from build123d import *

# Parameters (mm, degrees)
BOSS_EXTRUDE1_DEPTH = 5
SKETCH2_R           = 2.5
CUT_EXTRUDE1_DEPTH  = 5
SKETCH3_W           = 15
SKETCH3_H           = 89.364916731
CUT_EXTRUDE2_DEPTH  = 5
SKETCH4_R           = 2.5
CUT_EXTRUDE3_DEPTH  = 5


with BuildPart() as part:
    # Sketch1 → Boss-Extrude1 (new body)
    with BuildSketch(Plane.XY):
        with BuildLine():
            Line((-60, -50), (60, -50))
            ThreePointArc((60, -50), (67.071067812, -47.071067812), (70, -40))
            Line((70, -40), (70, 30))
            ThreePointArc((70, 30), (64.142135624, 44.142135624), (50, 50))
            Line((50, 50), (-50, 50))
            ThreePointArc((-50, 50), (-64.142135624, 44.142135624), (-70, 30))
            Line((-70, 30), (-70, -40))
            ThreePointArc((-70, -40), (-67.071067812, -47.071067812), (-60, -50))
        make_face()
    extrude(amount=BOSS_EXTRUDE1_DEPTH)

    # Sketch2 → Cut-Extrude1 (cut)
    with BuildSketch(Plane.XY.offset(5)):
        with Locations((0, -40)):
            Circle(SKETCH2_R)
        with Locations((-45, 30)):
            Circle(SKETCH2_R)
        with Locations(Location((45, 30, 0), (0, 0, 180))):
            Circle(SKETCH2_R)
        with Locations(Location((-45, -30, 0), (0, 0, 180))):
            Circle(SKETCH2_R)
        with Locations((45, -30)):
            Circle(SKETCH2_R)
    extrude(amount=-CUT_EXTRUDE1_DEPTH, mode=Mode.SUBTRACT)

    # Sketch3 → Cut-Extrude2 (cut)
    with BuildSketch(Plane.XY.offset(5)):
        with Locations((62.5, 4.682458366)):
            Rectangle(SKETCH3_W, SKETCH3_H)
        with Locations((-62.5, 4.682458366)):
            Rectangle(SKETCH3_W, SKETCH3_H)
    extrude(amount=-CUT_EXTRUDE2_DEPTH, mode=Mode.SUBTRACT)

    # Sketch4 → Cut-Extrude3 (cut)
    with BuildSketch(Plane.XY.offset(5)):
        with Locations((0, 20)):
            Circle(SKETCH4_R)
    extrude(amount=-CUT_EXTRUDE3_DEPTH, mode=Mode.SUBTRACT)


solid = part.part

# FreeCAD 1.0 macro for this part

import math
import FreeCAD as App
import Part
import Sketcher


def add_polygon(sketch, points):
    """Adds a closed chain of lines whose ends are joined by coincident constraints."""
    first, n = sketch.GeometryCount, len(points)
    for a, b in zip(points, points[1:] + points[:1]):
        sketch.addGeometry(Part.LineSegment(App.Vector(*a, 0), App.Vector(*b, 0)), False)
    for i in range(n):
        sketch.addConstraint(Sketcher.Constraint("Coincident", first + i, 2, first + (i + 1) % n, 1))

doc = App.newDocument("Part")
params = doc.addObject("Spreadsheet::Sheet", "Params")
for row, (alias, value) in enumerate([
    ("sketch1_radius", "10 mm"),
    ("sketch1_radius2", "20 mm"),
    ("sketch1_width", "120 mm"),
    ("sketch1_height", "70 mm"),
    ("pad1_length", "5 mm"),
    ("sketch2_diameter", "5 mm"),
    ("pocket1_length", "5 mm"),
    ("sketch3_width", "15 mm"),
    ("pocket2_length", "5 mm"),
    ("sketch4_diameter", "5 mm"),
    ("pocket3_length", "5 mm"),
], start=1):
    params.set(f"A{row}", alias)
    params.set(f"B{row}", "=" + value)
    params.setAlias(f"B{row}", alias)

body = doc.addObject("PartDesign::Body", "Body")

sketch1 = body.newObject("Sketcher::SketchObject", "Sketch")
sketch1.AttachmentSupport = (doc.getObject("XY_Plane"), [""])
sketch1.MapMode = "FlatFace"
sketch1.addGeometry([
    Part.LineSegment(App.Vector(-60, -50, 0), App.Vector(60, -50, 0)),
    Part.ArcOfCircle(Part.Circle(App.Vector(60, -40, 0), App.Vector(0, 0, 1), 10), math.radians(-90), math.radians(0)),
    Part.LineSegment(App.Vector(70, -40, 0), App.Vector(70, 30, 0)),
    Part.ArcOfCircle(Part.Circle(App.Vector(50, 30, 0), App.Vector(0, 0, 1), 20), math.radians(0), math.radians(90)),
    Part.LineSegment(App.Vector(50, 50, 0), App.Vector(-50, 50, 0)),
    Part.ArcOfCircle(Part.Circle(App.Vector(-50, 30, 0), App.Vector(0, 0, 1), 20), math.radians(90), math.radians(180)),
    Part.LineSegment(App.Vector(-70, 30, 0), App.Vector(-70, -40, 0)),
    Part.ArcOfCircle(Part.Circle(App.Vector(-60, -40, 0), App.Vector(0, 0, 1), 10), math.radians(180), math.radians(270)),
], False)
sketch1.addConstraint([
    Sketcher.Constraint("Tangent", 0, 2, 1, 1),
    Sketcher.Constraint("Tangent", 1, 2, 2, 1),
    Sketcher.Constraint("Tangent", 2, 2, 3, 1),
    Sketcher.Constraint("Tangent", 3, 2, 4, 1),
    Sketcher.Constraint("Tangent", 4, 2, 5, 1),
    Sketcher.Constraint("Tangent", 5, 2, 6, 1),
    Sketcher.Constraint("Tangent", 6, 2, 7, 1),
    Sketcher.Constraint("Tangent", 7, 2, 0, 1),
    Sketcher.Constraint("Horizontal", 0),
    Sketcher.Constraint("Vertical", 2),
    Sketcher.Constraint("Horizontal", 4),
    Sketcher.Constraint("Vertical", 6),
    Sketcher.Constraint("Equal", 3, 5),
    Sketcher.Constraint("Equal", 1, 7),
    Sketcher.Constraint("Radius", 1, 10.0),
    Sketcher.Constraint("Radius", 3, 20.0),
    Sketcher.Constraint("DistanceX", 0, 1, 0, 2, 120.0),
    Sketcher.Constraint("DistanceY", 2, 1, 2, 2, 70.0),
    Sketcher.Constraint("DistanceX", -1, 1, 1, 3, 60.0),
    Sketcher.Constraint("DistanceY", 1, 3, -1, 1, 40.0),
])
sketch1.setExpression("Constraints[14]", "Params.sketch1_radius")
sketch1.setExpression("Constraints[15]", "Params.sketch1_radius2")
sketch1.setExpression("Constraints[16]", "Params.sketch1_width")
sketch1.setExpression("Constraints[17]", "Params.sketch1_height")
pad1 = body.newObject("PartDesign::Pad", "Pad")
pad1.Profile = sketch1
pad1.setExpression("Length", "Params.pad1_length")

sketch2 = body.newObject("Sketcher::SketchObject", "Sketch001")
sketch2.AttachmentSupport = (doc.getObject("XY_Plane"), [""])
sketch2.MapMode = "FlatFace"
sketch2.AttachmentOffset = App.Placement(App.Vector(0, 0, 5), App.Rotation())
sketch2.addGeometry([
    Part.Circle(App.Vector(0, -40, 0), App.Vector(0, 0, 1), 2.5),
    Part.Circle(App.Vector(-45, 30, 0), App.Vector(0, 0, 1), 2.5),
    Part.Circle(App.Vector(45, 30, 0), App.Vector(0, 0, 1), 2.5),
    Part.Circle(App.Vector(-45, -30, 0), App.Vector(0, 0, 1), 2.5),
    Part.Circle(App.Vector(45, -30, 0), App.Vector(0, 0, 1), 2.5),
], False)
sketch2.addConstraint([
    Sketcher.Constraint("Equal", 0, 1),
    Sketcher.Constraint("Equal", 1, 2),
    Sketcher.Constraint("Equal", 2, 3),
    Sketcher.Constraint("Equal", 3, 4),
    Sketcher.Constraint("Symmetric", 2, 3, 3, 3, -1, 1),
    Sketcher.Constraint("Symmetric", 1, 3, 4, 3, -1, 1),
    Sketcher.Constraint("Symmetric", 1, 3, 2, 3, -2),
    Sketcher.Constraint("PointOnObject", 0, 3, -2),
    Sketcher.Constraint("Diameter", 0, 5.0),
    Sketcher.Constraint("DistanceY", 0, 3, -1, 1, 40.0),
    Sketcher.Constraint("DistanceX", 1, 3, -1, 1, 45.0),
    Sketcher.Constraint("DistanceY", -1, 1, 1, 3, 30.0),
])
sketch2.setExpression("Constraints[8]", "Params.sketch2_diameter")
pocket1 = body.newObject("PartDesign::Pocket", "Pocket")
pocket1.Profile = sketch2
pocket1.setExpression("Length", "Params.pocket1_length")

sketch3 = body.newObject("Sketcher::SketchObject", "Sketch002")
sketch3.AttachmentSupport = (doc.getObject("XY_Plane"), [""])
sketch3.MapMode = "FlatFace"
sketch3.AttachmentOffset = App.Placement(App.Vector(0, 0, 5), App.Rotation())
add_polygon(sketch3, [(55, 49), (55, -40), (70, -40), (70, 49)])
add_polygon(sketch3, [(-70, 49), (-70, -40), (-55, -40), (-55, 49)])
sketch3.addConstraint([
    Sketcher.Constraint("Vertical", 0),
    Sketcher.Constraint("Horizontal", 1),
    Sketcher.Constraint("Vertical", 2),
    Sketcher.Constraint("Horizontal", 3),
    Sketcher.Constraint("Vertical", 4),
    Sketcher.Constraint("Horizontal", 5),
    Sketcher.Constraint("Vertical", 6),
    Sketcher.Constraint("Horizontal", 7),
    Sketcher.Constraint("Symmetric", 1, 2, 4, 2, -2),
    Sketcher.Constraint("Symmetric", 3, 2, 6, 2, -2),
    Sketcher.Constraint("DistanceX", 1, 1, 1, 2, 15.0),
    Sketcher.Constraint("DistanceX", -1, 1, 0, 2, 55.0),
    Sketcher.Constraint("DistanceY", 0, 2, -1, 1, 40.0),
    Sketcher.Constraint("DistanceY", 0, 2, 0, 1, 89.364917),
])
sketch3.setExpression("Constraints[18]", "Params.sketch3_width")
pocket2 = body.newObject("PartDesign::Pocket", "Pocket001")
pocket2.Profile = sketch3
pocket2.setExpression("Length", "Params.pocket2_length")

sketch4 = body.newObject("Sketcher::SketchObject", "Sketch003")
sketch4.AttachmentSupport = (doc.getObject("XY_Plane"), [""])
sketch4.MapMode = "FlatFace"
sketch4.AttachmentOffset = App.Placement(App.Vector(0, 0, 5), App.Rotation())
sketch4.addGeometry(Part.Circle(App.Vector(0, 20, 0), App.Vector(0, 0, 1), 2.5), False)
sketch4.addConstraint([
    Sketcher.Constraint("PointOnObject", 0, 3, -2),
    Sketcher.Constraint("Diameter", 0, 5.0),
    Sketcher.Constraint("DistanceY", -1, 1, 0, 3, 20.0),
])
sketch4.setExpression("Constraints[1]", "Params.sketch4_diameter")
pocket3 = body.newObject("PartDesign::Pocket", "Pocket002")
pocket3.Profile = sketch4
pocket3.setExpression("Length", "Params.pocket3_length")

doc.recompute()
